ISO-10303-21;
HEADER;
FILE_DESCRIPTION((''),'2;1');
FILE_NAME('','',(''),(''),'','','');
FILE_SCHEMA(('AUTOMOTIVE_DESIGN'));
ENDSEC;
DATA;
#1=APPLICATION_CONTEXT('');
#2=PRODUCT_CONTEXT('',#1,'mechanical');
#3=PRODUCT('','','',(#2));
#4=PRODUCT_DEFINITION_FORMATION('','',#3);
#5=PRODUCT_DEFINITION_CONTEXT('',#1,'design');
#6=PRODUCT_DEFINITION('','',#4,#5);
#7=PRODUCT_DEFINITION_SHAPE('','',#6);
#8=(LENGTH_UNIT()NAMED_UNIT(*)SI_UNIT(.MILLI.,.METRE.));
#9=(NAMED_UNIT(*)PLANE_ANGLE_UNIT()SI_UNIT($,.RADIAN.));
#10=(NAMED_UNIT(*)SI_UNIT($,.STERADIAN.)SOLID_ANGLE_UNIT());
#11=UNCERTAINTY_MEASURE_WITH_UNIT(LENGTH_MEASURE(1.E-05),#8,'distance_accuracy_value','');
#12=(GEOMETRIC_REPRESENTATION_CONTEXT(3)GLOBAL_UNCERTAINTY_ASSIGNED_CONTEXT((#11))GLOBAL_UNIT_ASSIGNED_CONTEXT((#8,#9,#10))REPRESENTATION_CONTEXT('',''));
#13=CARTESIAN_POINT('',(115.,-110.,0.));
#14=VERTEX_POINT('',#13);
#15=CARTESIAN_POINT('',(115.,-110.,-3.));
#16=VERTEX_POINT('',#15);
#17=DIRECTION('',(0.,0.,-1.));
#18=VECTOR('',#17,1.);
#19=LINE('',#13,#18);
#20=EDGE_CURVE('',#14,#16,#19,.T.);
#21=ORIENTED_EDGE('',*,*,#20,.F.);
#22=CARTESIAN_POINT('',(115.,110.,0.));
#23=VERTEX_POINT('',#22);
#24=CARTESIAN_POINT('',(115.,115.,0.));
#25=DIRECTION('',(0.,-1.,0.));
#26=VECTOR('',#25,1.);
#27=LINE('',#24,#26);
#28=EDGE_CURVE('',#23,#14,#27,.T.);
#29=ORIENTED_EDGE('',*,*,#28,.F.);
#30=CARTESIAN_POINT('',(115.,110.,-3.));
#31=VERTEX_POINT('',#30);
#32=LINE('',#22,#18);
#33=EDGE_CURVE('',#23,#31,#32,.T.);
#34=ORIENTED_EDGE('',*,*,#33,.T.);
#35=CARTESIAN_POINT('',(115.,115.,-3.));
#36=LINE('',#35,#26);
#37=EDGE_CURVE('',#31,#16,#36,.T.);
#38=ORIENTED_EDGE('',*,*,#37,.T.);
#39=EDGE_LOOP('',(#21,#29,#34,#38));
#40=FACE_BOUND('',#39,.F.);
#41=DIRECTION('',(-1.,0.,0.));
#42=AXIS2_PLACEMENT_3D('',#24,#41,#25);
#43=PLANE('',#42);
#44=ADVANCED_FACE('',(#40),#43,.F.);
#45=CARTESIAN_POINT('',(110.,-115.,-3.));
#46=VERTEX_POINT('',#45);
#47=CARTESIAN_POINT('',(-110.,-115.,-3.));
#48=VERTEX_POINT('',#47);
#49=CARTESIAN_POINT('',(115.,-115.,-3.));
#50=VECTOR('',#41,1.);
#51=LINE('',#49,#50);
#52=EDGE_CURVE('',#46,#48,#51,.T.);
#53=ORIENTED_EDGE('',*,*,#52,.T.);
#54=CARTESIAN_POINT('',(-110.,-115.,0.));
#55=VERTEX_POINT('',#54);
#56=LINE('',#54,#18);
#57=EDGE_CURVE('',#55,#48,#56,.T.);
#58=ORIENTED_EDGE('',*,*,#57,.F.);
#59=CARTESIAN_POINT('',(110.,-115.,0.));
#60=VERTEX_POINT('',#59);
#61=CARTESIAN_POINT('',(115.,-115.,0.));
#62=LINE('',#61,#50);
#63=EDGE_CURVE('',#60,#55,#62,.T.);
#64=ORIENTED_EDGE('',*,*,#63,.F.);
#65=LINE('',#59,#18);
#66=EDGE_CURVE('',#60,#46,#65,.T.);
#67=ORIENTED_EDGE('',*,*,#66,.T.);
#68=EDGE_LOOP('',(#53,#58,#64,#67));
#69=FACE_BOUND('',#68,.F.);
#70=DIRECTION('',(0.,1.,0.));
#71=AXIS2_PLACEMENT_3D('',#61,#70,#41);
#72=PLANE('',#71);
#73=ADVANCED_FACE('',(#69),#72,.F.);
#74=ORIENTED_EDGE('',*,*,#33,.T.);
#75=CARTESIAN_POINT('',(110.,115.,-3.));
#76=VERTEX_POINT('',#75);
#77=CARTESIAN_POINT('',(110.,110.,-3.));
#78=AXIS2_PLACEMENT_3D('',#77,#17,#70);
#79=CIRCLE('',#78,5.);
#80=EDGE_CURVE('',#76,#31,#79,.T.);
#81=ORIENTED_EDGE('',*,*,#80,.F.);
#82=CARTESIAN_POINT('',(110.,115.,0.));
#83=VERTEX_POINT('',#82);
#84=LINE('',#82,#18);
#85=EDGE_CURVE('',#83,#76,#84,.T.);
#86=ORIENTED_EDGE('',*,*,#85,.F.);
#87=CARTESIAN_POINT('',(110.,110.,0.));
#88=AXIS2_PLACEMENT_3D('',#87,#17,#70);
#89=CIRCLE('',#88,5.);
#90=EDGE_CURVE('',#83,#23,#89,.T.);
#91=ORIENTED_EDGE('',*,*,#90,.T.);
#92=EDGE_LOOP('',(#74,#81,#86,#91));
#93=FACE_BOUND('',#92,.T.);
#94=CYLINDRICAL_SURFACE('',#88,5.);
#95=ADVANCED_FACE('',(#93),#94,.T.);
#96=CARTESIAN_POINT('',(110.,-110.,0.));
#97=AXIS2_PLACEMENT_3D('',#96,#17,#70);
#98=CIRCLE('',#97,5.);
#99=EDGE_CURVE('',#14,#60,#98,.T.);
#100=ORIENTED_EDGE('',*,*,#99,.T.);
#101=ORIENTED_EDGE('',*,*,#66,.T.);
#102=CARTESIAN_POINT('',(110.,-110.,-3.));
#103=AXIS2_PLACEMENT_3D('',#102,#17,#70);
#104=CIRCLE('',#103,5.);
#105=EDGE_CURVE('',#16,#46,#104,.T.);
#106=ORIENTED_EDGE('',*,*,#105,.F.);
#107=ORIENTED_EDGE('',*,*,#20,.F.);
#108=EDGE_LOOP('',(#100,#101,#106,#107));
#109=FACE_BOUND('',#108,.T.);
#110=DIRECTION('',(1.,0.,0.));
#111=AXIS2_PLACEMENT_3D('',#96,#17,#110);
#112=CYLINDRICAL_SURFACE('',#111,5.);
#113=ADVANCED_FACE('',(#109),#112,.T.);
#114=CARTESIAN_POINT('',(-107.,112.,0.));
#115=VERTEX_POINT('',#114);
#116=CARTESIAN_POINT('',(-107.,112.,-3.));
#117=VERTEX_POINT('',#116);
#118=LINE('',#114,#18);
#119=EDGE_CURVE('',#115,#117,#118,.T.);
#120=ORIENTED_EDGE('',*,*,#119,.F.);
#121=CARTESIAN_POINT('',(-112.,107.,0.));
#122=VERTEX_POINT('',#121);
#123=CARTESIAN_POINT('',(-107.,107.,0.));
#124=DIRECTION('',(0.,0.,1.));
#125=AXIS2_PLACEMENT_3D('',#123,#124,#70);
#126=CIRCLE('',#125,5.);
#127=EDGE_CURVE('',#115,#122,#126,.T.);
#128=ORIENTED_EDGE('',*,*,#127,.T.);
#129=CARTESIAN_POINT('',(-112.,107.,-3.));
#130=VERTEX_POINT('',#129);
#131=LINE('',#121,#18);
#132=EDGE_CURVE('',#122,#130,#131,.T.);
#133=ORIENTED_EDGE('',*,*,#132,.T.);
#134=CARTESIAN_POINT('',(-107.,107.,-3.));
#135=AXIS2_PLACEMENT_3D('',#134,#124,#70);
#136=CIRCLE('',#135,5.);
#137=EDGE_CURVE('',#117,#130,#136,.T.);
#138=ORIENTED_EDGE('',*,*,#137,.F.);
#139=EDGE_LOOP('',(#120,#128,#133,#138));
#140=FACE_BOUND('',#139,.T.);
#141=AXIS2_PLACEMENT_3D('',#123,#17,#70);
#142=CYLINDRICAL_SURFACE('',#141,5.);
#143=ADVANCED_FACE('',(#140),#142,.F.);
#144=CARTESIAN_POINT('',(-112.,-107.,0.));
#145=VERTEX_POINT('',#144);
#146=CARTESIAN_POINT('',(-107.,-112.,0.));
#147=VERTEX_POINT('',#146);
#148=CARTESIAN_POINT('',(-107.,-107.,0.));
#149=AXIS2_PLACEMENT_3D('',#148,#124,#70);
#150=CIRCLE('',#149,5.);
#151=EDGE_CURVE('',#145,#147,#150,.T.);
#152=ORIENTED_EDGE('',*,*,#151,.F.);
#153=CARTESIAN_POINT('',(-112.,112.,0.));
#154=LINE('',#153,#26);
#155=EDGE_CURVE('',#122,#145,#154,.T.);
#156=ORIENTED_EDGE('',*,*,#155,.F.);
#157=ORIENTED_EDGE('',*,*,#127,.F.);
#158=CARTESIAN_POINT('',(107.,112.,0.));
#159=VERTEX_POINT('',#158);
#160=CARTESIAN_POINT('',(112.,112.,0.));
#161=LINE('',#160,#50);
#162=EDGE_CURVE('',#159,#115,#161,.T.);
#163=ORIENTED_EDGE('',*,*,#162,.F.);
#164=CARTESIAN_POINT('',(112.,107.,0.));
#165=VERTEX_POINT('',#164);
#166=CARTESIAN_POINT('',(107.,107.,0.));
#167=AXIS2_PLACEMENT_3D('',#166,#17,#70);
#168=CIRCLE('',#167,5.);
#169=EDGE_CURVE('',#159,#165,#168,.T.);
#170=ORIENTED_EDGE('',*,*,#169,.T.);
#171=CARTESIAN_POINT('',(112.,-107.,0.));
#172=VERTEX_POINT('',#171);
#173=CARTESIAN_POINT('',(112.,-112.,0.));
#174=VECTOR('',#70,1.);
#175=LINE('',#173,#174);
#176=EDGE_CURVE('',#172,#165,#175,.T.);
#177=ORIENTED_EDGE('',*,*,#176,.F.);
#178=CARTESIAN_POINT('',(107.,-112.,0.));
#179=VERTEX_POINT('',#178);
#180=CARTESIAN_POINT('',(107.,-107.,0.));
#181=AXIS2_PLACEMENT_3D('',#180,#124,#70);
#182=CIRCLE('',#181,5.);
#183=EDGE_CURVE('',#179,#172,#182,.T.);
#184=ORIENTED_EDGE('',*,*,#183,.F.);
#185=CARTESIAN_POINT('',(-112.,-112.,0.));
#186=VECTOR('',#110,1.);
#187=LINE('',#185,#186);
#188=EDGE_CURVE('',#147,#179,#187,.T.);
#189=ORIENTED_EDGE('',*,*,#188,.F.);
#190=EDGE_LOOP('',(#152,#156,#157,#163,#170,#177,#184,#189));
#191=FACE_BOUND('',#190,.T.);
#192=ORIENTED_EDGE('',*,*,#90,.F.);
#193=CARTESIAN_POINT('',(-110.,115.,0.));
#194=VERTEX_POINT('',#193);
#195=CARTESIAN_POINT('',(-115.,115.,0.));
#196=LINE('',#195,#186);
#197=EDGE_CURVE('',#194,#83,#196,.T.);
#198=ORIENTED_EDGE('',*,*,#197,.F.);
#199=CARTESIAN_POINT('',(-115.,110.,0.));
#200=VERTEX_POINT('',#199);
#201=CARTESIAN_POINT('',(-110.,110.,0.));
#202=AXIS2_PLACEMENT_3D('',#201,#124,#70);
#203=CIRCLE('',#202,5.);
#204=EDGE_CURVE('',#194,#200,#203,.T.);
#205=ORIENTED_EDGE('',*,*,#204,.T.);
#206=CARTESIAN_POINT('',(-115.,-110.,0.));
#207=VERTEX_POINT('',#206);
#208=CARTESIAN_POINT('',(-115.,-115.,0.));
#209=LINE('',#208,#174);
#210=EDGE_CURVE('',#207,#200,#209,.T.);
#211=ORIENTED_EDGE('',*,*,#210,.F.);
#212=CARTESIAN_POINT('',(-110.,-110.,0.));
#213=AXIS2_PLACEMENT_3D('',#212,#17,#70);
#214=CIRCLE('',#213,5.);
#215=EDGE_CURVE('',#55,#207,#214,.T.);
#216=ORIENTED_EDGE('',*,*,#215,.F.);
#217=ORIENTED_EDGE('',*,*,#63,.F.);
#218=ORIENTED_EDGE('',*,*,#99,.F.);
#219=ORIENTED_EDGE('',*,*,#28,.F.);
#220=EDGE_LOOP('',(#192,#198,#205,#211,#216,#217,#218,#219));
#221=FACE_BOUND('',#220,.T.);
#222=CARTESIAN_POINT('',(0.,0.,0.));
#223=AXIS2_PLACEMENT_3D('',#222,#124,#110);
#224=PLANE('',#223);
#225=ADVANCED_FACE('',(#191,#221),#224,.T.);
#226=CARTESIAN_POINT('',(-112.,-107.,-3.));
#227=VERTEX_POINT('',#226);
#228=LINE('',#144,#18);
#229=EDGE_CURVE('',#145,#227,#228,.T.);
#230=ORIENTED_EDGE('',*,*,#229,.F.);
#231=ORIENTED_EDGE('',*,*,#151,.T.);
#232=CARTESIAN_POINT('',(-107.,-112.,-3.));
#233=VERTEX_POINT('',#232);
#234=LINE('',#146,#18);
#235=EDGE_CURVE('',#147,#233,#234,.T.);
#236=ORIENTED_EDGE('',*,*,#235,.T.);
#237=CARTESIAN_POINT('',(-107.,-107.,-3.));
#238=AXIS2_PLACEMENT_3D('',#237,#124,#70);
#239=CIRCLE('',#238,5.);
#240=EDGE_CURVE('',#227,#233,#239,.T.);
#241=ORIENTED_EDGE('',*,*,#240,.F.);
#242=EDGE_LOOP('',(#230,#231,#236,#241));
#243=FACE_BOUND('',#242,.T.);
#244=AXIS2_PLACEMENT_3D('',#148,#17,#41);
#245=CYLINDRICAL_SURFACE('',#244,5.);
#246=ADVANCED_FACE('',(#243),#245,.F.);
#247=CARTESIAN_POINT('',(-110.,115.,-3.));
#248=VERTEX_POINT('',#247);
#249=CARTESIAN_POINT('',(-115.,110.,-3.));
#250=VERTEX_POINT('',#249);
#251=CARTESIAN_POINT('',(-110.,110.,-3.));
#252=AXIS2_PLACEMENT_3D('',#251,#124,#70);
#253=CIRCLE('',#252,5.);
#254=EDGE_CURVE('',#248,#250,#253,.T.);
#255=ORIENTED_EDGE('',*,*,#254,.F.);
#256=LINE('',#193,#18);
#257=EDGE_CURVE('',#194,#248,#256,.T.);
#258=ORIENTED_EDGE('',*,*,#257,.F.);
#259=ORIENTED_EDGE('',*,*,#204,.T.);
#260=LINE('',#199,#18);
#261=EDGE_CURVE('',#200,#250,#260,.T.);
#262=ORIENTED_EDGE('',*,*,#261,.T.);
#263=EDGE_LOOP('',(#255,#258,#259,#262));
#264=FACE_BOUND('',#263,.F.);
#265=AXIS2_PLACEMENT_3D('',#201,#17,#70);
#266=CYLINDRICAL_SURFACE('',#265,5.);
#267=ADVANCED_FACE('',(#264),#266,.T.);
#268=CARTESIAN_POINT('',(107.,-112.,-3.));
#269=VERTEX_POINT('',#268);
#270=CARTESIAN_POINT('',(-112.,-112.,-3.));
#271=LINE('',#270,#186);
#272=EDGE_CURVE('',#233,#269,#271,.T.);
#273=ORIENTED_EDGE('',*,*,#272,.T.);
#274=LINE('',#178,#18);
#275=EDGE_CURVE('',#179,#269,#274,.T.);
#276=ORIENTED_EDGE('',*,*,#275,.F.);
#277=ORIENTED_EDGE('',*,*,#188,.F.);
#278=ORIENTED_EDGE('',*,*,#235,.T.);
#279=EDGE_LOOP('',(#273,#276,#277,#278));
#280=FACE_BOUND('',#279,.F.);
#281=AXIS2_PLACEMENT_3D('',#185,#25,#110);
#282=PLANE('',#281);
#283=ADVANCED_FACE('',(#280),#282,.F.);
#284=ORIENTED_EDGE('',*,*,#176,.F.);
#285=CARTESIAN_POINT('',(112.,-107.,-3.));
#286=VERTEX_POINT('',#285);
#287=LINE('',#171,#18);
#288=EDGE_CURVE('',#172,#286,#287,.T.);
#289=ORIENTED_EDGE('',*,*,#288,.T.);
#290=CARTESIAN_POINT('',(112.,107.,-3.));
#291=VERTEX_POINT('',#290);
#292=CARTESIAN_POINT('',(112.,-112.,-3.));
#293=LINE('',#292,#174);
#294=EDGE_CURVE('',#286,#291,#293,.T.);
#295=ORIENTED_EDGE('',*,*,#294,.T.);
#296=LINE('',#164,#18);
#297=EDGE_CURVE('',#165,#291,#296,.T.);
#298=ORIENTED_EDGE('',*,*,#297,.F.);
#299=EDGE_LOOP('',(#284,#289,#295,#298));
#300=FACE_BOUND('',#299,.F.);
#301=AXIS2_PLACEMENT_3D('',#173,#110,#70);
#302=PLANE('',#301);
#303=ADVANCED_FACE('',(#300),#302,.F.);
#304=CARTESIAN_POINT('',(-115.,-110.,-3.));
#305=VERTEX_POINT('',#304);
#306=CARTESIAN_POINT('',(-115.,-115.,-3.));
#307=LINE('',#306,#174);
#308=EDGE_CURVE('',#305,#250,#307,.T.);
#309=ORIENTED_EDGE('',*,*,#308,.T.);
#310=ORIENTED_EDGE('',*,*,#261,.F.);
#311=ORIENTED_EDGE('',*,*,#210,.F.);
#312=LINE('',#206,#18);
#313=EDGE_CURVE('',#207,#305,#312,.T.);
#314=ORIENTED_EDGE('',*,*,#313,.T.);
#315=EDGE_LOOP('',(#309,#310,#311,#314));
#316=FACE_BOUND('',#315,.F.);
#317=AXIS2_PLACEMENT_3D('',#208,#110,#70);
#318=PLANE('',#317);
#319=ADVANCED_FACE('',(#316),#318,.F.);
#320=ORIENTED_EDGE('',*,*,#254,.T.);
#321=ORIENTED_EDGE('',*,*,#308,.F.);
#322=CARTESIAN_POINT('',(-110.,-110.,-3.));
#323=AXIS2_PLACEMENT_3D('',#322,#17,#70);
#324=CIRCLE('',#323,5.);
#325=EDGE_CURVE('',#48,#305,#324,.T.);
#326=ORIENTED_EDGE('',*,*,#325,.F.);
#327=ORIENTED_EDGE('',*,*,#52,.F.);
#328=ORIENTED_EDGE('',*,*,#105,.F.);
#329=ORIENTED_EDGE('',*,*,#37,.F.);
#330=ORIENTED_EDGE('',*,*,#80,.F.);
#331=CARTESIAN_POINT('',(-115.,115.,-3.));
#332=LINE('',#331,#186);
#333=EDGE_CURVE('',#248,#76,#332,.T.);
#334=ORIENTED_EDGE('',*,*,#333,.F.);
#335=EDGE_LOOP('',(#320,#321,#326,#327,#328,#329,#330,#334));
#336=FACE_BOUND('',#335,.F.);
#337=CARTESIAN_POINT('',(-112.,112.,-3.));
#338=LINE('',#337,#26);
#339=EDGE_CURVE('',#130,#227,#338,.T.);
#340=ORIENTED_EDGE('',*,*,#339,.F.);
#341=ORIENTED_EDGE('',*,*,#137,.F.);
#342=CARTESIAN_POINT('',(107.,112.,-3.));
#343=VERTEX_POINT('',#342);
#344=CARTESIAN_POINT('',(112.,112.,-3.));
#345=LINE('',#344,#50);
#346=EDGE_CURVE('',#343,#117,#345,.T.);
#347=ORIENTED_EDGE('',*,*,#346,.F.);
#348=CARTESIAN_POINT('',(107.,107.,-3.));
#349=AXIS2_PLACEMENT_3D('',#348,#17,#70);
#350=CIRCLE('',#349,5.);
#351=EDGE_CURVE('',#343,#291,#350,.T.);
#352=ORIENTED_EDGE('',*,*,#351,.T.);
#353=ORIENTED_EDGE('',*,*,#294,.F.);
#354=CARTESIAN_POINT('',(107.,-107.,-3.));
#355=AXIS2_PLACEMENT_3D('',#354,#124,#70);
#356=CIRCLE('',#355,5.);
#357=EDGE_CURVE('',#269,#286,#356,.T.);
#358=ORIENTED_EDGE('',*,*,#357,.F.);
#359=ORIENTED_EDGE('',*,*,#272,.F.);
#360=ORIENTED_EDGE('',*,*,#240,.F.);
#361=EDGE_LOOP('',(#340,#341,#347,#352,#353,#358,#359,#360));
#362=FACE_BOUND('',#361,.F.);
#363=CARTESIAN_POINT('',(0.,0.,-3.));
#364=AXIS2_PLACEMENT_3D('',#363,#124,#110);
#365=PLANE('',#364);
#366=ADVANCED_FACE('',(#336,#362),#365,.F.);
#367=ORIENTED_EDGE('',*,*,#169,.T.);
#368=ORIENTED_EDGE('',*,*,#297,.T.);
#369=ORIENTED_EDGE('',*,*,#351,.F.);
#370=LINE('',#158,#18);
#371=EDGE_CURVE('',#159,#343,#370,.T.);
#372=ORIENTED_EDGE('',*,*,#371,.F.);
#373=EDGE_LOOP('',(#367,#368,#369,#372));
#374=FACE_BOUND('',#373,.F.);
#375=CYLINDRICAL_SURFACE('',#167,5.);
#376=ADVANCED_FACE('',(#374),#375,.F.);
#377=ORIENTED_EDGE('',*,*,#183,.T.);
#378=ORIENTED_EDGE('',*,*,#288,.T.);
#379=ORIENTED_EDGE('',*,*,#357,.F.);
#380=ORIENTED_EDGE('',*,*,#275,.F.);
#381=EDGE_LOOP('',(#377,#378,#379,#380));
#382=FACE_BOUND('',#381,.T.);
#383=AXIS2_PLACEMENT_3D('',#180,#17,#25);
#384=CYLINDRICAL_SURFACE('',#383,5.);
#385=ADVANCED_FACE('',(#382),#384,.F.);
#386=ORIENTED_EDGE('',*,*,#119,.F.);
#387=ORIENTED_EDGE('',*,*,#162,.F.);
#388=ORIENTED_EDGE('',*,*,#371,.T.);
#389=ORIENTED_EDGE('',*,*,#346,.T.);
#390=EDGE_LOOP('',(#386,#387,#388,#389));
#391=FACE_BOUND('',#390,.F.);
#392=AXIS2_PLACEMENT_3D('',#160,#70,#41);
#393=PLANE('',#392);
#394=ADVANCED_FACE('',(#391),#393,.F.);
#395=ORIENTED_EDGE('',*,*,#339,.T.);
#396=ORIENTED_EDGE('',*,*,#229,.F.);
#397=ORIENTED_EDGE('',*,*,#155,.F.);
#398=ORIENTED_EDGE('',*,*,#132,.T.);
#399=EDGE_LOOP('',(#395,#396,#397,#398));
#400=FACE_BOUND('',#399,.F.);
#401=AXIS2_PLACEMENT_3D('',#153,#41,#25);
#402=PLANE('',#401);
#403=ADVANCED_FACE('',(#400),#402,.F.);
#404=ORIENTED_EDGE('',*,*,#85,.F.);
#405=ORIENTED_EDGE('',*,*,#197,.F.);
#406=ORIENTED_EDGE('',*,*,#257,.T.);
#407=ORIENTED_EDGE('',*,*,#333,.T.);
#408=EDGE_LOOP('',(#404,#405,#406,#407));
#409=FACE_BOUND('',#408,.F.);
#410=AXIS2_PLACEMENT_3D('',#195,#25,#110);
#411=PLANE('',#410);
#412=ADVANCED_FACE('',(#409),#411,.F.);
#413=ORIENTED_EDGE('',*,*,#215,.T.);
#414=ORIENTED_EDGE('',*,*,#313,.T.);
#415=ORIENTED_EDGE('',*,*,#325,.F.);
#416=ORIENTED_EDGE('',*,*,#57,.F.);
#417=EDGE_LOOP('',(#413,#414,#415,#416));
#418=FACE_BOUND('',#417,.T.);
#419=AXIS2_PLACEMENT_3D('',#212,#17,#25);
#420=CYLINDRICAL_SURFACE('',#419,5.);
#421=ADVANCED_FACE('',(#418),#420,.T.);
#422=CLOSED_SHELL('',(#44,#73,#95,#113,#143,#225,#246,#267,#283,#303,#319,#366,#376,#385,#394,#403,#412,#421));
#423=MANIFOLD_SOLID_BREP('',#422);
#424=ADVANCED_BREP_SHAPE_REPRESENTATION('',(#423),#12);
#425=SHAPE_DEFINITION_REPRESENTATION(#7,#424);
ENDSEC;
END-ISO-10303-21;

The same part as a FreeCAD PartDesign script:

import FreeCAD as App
import Part
import Sketcher

V = App.Vector


def edges_at(feature, points):
    """Names of the edges that pass closest to the given points."""
    edges = feature.Shape.Edges
    near = lambda p: min(range(len(edges)), key=lambda i: edges[i].distToShape(Part.Vertex(*p))[0])
    return sorted({f"Edge{near(p) + 1}" for p in points})


def add_polygon(sketch, points):
    """Adds a closed chain of lines whose ends are joined by coincident constraints."""
    first, n = sketch.GeometryCount, len(points)
    for a, b in zip(points, points[1:] + points[:1]):
        sketch.addGeometry(Part.LineSegment(App.Vector(*a, 0), App.Vector(*b, 0)), False)
    for i in range(n):
        sketch.addConstraint(Sketcher.Constraint("Coincident", first + i, 2, first + (i + 1) % n, 1))

doc = App.newDocument("Part")
body = doc.addObject("PartDesign::Body", "Body")

sketch1 = body.newObject("Sketcher::SketchObject", "Sketch")
sketch1.AttachmentSupport = (doc.getObject("XY_Plane"), [""])
sketch1.MapMode = "FlatFace"
add_polygon(sketch1, [(115, 115), (-115, 115), (-115, -115), (115, -115)])
add_polygon(sketch1, [(-112, 112), (112, 112), (112, -112), (-112, -112)])
sketch1.addConstraint(Sketcher.Constraint("Horizontal", 0))
sketch1.addConstraint(Sketcher.Constraint("Vertical", 1))
sketch1.addConstraint(Sketcher.Constraint("Horizontal", 2))
sketch1.addConstraint(Sketcher.Constraint("Vertical", 3))
sketch1.addConstraint(Sketcher.Constraint("Horizontal", 4))
sketch1.addConstraint(Sketcher.Constraint("Vertical", 5))
sketch1.addConstraint(Sketcher.Constraint("Horizontal", 6))
sketch1.addConstraint(Sketcher.Constraint("Vertical", 7))
sketch1.addConstraint(Sketcher.Constraint("Symmetric", 0, 2, 2, 2, -1, 1))
sketch1.addConstraint(Sketcher.Constraint("Symmetric", 4, 2, 6, 2, -1, 1))
sketch1.addConstraint(Sketcher.Constraint("Equal", 2, 1))
sketch1.addConstraint(Sketcher.Constraint("Equal", 6, 5))
sketch1.addConstraint(Sketcher.Constraint("DistanceX", 0, 2, 0, 1, 230.0))
sketch1.addConstraint(Sketcher.Constraint("DistanceX", 4, 2, 3, 2, 3.0))
pad1 = body.newObject("PartDesign::Pad", "Pad")
pad1.Profile = sketch1
pad1.Length = 3
pad1.Reversed = True
doc.recompute()

fillet = body.newObject("PartDesign::Fillet", "Fillet")
fillet.Base = (pad1, edges_at(pad1, [
    (-115, 115, -1.5),
    (-112, 112, -1.5),
    (-112, -112, -1.5),
    (-115, -115, -1.5),
    (115, -115, -1.5),
    (112, -112, -1.5),
    (115, 115, -1.5),
    (112, 112, -1.5),
]))
fillet.Radius = 5

doc.recompute()
